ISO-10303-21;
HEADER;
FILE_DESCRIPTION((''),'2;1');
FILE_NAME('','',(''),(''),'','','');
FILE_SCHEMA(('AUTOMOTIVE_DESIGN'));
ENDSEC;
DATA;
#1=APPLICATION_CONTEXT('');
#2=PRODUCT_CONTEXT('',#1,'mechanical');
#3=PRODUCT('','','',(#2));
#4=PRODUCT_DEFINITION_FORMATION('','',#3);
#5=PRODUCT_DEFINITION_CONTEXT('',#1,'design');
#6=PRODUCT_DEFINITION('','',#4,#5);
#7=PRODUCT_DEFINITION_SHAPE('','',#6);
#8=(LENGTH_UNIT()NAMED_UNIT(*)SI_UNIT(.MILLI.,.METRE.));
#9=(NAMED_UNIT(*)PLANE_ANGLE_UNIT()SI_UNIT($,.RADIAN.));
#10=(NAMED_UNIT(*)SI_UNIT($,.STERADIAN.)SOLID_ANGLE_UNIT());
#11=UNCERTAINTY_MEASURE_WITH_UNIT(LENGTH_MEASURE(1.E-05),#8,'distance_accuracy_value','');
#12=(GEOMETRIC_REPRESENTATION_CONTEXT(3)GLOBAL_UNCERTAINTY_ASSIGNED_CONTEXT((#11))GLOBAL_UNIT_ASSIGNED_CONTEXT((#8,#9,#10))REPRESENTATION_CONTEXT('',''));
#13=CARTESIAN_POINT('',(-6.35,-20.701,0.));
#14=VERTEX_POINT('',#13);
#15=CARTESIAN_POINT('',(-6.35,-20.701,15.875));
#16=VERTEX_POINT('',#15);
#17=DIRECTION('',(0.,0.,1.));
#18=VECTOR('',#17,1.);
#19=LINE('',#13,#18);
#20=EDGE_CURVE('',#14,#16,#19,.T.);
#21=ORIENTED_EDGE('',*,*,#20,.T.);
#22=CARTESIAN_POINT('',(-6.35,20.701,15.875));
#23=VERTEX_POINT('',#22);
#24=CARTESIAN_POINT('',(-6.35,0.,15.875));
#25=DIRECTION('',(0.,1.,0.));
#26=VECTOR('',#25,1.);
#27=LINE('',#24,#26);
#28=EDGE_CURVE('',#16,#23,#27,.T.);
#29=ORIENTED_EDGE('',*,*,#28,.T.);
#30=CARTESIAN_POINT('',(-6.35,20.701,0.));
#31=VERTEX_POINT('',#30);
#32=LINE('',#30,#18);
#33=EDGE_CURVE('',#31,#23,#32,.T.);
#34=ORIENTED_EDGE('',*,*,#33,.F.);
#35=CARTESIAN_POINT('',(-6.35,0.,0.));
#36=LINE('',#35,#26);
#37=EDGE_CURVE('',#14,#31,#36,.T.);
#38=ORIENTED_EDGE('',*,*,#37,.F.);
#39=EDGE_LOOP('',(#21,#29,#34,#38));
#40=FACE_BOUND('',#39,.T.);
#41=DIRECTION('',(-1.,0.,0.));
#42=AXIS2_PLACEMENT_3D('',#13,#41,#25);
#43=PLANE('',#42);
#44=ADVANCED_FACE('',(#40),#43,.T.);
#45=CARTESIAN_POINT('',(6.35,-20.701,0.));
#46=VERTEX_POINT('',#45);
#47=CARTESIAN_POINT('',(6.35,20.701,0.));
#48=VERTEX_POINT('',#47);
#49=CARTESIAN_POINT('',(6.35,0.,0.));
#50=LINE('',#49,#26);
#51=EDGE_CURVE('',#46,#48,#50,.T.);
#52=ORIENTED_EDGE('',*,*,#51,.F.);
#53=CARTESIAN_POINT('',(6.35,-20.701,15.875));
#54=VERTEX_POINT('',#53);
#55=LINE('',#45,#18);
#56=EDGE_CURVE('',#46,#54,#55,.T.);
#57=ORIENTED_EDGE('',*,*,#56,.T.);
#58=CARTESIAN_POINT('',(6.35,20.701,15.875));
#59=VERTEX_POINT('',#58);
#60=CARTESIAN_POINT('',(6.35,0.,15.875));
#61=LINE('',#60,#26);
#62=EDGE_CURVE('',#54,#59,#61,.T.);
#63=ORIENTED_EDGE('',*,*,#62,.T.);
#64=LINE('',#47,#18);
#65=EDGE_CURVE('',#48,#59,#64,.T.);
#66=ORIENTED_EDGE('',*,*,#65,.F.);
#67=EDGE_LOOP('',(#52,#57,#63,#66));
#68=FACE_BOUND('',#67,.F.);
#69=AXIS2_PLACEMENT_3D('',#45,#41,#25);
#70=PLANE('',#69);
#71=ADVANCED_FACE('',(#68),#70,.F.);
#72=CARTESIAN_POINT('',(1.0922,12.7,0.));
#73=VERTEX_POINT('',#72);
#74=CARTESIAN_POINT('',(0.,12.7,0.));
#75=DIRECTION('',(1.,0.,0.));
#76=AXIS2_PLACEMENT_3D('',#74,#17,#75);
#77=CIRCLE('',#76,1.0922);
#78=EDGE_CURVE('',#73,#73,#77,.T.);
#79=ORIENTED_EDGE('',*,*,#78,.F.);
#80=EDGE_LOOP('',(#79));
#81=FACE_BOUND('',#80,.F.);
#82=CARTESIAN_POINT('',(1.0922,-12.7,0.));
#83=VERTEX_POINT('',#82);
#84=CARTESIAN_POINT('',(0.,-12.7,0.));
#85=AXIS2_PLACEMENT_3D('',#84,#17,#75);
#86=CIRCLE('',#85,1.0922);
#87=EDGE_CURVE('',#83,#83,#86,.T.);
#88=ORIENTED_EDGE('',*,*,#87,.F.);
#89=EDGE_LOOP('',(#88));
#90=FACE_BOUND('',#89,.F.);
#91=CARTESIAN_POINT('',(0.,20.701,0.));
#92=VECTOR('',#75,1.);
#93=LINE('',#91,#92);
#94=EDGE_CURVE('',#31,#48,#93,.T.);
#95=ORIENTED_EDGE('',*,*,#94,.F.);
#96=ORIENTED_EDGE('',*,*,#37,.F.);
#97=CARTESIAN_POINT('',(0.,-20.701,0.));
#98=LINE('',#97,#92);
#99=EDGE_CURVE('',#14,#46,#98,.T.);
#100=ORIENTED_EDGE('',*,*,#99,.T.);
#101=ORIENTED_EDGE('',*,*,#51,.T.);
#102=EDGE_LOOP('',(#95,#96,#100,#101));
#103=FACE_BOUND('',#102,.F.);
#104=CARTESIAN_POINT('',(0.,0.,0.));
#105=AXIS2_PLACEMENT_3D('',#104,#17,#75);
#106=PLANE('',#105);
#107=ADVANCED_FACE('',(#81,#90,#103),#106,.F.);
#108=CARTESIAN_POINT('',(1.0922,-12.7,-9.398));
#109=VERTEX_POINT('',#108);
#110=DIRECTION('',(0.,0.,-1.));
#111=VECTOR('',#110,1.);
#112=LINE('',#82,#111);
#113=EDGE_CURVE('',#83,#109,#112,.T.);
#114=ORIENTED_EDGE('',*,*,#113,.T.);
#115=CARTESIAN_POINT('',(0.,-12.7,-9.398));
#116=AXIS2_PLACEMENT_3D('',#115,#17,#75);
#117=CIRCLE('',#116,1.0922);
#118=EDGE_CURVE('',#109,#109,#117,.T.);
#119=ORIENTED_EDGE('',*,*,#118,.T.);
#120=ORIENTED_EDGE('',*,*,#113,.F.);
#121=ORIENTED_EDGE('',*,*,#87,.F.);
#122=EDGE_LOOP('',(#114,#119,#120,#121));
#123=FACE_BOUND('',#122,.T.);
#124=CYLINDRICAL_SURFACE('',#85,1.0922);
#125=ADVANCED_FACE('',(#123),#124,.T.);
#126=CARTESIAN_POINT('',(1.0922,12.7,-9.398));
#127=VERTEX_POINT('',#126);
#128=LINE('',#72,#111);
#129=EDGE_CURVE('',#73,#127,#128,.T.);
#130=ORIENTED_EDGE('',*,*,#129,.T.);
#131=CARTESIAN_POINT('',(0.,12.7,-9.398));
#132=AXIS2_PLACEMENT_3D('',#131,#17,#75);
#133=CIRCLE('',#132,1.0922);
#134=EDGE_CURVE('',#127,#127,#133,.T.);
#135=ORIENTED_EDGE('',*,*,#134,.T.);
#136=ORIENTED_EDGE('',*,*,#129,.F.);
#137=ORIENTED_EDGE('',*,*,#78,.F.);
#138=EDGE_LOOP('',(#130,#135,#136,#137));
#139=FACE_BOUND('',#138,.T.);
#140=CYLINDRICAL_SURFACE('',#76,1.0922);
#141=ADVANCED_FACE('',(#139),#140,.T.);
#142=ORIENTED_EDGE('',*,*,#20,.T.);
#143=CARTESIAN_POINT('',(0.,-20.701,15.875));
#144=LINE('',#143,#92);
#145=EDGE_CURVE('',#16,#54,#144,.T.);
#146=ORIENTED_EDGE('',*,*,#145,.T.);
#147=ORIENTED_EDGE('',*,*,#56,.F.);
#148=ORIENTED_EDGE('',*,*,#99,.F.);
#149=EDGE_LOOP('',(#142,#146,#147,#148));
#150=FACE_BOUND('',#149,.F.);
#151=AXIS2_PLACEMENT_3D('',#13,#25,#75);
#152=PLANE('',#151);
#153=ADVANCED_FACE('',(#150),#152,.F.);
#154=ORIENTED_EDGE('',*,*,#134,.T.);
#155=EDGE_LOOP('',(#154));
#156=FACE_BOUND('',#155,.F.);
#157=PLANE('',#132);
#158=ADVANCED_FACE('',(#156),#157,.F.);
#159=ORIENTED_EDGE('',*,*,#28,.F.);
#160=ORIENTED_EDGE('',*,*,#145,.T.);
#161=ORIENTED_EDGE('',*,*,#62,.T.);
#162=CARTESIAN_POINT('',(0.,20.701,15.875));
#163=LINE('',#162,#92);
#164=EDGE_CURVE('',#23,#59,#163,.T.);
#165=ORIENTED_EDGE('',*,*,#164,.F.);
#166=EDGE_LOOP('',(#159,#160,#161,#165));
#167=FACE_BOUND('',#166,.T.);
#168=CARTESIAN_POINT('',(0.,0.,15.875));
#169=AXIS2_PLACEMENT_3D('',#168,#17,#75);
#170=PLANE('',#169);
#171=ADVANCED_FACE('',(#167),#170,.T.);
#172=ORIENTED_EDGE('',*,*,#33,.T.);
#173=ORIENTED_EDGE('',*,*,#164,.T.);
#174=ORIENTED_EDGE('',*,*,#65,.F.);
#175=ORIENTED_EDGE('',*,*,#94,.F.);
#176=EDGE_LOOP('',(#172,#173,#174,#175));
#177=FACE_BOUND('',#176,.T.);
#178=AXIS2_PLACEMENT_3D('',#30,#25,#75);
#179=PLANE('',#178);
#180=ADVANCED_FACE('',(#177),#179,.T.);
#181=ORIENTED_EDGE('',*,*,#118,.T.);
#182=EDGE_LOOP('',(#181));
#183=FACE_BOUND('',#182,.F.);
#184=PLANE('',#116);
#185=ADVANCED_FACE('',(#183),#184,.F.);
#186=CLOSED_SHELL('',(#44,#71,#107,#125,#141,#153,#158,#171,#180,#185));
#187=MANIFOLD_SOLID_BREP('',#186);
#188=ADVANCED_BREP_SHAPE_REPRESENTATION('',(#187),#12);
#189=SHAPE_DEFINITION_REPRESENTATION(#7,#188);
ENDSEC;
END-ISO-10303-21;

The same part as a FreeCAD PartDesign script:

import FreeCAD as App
import Part
import Sketcher

V = App.Vector
Q = App.Units.Quantity


def add_polygon(sketch, points):
    """Adds a closed chain of lines whose ends are joined by coincident constraints."""
    first, n = sketch.GeometryCount, len(points)
    for a, b in zip(points, points[1:] + points[:1]):
        sketch.addGeometry(Part.LineSegment(App.Vector(*a, 0), App.Vector(*b, 0)), False)
    for i in range(n):
        sketch.addConstraint(Sketcher.Constraint("Coincident", first + i, 2, first + (i + 1) % n, 1))

doc = App.newDocument("Part")
body = doc.addObject("PartDesign::Body", "Body")

# Sketch on XY plane
sketch1 = body.newObject("Sketcher::SketchObject", "Sketch")
sketch1.AttachmentSupport = (doc.getObject("XY_Plane"), [""])
sketch1.MapMode = "FlatFace"
add_polygon(sketch1, [(-6.35, 20.701), (-6.35, -20.701), (6.35, -20.701), (6.35, 20.701)])  # lines 0-3
sketch1.addConstraint([
    Sketcher.Constraint("Vertical", 0),
    Sketcher.Constraint("Horizontal", 1),
    Sketcher.Constraint("Vertical", 2),
    Sketcher.Constraint("Horizontal", 3),
    Sketcher.Constraint("Symmetric", 0, 2, 2, 2, -1, 1),
    Sketcher.Constraint("DistanceX", 1, 1, 1, 2, Q("0.5 in")),
    Sketcher.Constraint("DistanceY", 0, 2, 0, 1, Q("1.63 in")),
])
pad1 = body.newObject("PartDesign::Pad", "Pad")
pad1.Profile = sketch1
pad1.Length = Q("0.625 in")

# Sketch on XY plane
sketch2 = body.newObject("Sketcher::SketchObject", "Sketch001")
sketch2.AttachmentSupport = (doc.getObject("XY_Plane"), [""])
sketch2.MapMode = "FlatFace"
sketch2.addGeometry([
    Part.Circle(V(0, 12.7, 0), V(0, 0, 1), 1.0922),
    Part.Circle(V(0, -12.7, 0), V(0, 0, 1), 1.0922),
], False)
sketch2.addConstraint([
    Sketcher.Constraint("Equal", 0, 1),
    Sketcher.Constraint("Symmetric", 0, 3, 1, 3, -1, 1),
    Sketcher.Constraint("PointOnObject", 0, 3, -2),
    Sketcher.Constraint("Diameter", 0, Q("0.086 in")),
    Sketcher.Constraint("DistanceY", 1, 3, 0, 3, Q("1 in")),
])
pad2 = body.newObject("PartDesign::Pad", "Pad001")
pad2.Profile = sketch2
pad2.Length = Q("0.37 in")
pad2.Reversed = True

doc.recompute()
